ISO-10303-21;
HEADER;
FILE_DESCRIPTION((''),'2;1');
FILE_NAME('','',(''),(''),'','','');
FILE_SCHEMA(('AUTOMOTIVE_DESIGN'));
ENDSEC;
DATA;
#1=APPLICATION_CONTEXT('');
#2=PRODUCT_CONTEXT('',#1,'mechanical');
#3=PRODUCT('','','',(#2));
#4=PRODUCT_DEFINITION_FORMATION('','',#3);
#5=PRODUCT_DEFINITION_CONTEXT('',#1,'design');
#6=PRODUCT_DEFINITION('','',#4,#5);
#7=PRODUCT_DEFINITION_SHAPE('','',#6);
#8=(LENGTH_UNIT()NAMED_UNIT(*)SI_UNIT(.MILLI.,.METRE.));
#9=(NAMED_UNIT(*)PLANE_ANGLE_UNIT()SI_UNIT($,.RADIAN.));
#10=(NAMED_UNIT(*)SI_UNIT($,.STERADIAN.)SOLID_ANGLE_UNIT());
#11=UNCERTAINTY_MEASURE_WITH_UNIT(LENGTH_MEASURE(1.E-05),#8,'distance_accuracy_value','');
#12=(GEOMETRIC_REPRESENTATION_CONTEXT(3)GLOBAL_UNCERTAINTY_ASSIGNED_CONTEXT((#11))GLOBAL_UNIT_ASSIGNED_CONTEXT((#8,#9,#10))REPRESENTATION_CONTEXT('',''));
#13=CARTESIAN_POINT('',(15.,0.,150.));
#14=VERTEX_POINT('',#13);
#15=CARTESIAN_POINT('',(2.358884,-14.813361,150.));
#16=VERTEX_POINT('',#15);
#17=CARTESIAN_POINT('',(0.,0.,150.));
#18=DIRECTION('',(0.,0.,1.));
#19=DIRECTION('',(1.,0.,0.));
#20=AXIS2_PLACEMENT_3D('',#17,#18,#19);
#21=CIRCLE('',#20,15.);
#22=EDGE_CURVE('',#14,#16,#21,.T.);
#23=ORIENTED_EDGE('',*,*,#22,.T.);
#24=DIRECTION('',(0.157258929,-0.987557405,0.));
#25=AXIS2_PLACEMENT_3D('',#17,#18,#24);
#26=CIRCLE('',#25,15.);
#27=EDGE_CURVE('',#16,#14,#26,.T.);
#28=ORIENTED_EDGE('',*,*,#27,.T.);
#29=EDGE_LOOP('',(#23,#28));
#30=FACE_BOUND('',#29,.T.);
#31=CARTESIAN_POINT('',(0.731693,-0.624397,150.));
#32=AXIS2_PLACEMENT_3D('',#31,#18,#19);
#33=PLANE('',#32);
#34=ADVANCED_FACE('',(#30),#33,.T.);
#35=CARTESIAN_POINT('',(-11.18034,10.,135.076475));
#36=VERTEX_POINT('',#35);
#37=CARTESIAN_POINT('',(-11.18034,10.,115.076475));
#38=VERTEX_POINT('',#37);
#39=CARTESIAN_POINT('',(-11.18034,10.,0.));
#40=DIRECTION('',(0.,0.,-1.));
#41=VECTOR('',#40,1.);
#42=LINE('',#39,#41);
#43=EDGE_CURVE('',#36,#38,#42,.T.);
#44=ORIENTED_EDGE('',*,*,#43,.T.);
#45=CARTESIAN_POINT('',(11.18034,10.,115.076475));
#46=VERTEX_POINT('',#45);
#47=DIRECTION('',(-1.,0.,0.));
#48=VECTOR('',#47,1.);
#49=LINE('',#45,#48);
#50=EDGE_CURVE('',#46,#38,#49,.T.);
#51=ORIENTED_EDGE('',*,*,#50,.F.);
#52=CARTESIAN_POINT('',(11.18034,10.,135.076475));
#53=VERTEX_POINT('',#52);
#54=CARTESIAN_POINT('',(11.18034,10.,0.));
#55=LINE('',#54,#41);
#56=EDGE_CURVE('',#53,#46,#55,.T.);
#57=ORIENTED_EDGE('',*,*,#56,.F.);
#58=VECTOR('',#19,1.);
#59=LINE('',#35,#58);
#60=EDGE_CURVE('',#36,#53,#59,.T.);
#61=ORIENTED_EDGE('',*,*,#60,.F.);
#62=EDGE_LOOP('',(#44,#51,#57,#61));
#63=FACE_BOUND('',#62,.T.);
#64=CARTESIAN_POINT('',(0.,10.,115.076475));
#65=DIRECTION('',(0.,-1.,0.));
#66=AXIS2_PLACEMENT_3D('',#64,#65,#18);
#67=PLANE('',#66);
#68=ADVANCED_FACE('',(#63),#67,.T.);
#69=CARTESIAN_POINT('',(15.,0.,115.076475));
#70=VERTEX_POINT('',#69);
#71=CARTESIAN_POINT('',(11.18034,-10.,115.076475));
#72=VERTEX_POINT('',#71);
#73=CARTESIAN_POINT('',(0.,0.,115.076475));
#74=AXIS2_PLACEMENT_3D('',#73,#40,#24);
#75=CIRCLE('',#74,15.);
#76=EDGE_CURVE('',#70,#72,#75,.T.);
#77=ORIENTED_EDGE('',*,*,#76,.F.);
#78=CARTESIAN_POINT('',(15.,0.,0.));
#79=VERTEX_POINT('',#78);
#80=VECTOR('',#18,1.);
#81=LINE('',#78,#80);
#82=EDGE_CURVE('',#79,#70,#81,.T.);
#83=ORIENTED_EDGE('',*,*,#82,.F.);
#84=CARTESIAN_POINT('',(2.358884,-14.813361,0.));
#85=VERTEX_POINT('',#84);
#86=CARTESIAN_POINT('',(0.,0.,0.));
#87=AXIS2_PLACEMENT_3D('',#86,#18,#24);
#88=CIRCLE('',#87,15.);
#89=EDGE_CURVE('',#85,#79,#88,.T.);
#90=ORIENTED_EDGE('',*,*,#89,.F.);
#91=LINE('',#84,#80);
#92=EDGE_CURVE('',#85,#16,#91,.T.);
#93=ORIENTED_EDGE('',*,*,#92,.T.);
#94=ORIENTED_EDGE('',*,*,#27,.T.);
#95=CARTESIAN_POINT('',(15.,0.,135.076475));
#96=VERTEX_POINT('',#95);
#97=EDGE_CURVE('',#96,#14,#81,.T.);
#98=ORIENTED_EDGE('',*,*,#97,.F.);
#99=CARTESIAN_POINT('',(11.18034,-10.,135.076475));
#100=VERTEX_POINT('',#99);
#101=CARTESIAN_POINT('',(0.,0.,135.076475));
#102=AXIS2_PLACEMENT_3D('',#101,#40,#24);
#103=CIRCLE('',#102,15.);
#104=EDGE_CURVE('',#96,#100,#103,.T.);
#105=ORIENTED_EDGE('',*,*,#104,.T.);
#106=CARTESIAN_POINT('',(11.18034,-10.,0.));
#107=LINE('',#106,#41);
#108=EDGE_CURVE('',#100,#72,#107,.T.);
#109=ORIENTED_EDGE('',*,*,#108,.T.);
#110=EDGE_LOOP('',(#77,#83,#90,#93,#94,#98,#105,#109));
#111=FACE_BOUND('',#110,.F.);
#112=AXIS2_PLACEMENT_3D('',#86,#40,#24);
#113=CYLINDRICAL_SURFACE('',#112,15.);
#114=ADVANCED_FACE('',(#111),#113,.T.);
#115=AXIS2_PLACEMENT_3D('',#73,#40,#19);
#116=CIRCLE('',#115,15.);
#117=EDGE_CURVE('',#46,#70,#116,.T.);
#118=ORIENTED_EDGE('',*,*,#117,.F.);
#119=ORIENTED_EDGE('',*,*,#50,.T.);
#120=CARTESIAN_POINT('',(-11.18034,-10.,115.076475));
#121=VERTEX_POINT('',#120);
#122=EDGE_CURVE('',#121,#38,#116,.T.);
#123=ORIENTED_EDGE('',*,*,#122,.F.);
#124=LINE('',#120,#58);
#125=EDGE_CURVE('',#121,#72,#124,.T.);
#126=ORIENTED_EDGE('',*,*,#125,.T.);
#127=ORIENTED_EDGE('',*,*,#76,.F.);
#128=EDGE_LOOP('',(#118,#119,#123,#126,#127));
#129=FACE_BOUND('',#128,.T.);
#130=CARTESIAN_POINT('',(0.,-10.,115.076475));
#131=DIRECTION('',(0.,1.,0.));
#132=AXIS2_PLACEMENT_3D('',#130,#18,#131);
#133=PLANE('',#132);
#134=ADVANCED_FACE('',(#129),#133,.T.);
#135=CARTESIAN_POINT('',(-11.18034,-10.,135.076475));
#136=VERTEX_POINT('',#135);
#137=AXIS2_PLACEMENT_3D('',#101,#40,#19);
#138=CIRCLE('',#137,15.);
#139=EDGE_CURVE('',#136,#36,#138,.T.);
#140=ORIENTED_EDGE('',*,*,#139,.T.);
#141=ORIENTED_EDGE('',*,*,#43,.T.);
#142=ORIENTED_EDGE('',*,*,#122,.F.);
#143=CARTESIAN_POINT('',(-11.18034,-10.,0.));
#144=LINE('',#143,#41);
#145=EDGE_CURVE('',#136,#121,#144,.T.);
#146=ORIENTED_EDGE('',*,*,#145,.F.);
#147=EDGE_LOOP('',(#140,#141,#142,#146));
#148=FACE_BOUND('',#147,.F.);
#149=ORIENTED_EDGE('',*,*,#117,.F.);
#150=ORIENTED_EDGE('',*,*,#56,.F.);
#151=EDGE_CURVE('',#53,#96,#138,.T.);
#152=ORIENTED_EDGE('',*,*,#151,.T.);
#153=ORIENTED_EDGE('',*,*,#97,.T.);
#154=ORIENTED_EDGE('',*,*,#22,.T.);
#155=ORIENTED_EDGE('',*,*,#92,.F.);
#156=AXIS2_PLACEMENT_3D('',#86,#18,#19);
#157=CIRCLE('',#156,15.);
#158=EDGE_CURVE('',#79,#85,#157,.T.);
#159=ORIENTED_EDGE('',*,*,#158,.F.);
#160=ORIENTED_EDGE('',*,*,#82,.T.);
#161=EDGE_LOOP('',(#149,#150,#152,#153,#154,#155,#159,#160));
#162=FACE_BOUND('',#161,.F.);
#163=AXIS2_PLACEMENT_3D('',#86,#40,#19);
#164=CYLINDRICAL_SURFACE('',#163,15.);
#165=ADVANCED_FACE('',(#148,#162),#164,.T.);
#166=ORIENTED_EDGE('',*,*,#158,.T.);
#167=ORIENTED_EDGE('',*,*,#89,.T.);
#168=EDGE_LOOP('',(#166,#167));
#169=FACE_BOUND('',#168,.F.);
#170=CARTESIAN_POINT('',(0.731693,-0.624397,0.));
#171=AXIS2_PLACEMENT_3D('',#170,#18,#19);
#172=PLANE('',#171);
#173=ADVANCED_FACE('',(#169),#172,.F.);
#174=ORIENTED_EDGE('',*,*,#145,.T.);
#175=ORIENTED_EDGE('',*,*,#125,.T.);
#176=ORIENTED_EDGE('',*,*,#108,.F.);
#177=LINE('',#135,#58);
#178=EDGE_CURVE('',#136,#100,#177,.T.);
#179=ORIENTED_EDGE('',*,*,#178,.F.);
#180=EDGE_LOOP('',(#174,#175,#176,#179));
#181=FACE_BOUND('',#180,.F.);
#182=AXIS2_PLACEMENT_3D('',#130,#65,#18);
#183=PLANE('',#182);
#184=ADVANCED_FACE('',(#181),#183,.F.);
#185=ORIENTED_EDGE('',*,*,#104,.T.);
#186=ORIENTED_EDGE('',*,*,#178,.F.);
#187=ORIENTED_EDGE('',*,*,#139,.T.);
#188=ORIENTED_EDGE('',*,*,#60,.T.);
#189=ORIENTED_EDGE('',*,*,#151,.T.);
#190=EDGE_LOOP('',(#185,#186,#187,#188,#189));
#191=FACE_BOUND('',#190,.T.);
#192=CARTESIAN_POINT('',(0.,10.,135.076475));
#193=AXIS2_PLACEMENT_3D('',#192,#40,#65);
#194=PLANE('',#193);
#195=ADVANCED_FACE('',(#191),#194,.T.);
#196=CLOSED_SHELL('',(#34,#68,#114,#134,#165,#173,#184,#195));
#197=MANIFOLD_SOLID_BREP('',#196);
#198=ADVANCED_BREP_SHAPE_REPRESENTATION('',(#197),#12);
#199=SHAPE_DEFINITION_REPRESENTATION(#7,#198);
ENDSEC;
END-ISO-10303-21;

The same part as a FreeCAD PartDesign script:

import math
import FreeCAD as App
import Part
import Sketcher
from FreeCAD import Vector

doc = App.newDocument("Part")
params = doc.addObject("Spreadsheet::Sheet", "Params")
for row, (alias, value) in enumerate([
    ("sketch1_radius", "15 mm"),
    ("pad1_length", "150 mm"),
    ("sketch2_width", "20 mm"),
], start=1):
    params.set(f"A{row}", alias)
    params.set(f"B{row}", "=" + value)
    params.setAlias(f"B{row}", alias)

body = doc.addObject("PartDesign::Body", "Body")

sketch1 = body.newObject("Sketcher::SketchObject", "Sketch")
sketch1.AttachmentSupport = (doc.getObject("XY_Plane"), [""])
sketch1.MapMode = "FlatFace"
sketch1.addGeometry([
    Part.ArcOfCircle(Part.Circle(Vector(0, 0, 0), Vector(0, 0, 1), 15), math.radians(-81), math.radians(0)),
    Part.ArcOfCircle(Part.Circle(Vector(0, 0, 0), Vector(0, 0, 1), 15), math.radians(0), math.radians(279)),
], False)
sketch1.addConstraint([
    Sketcher.Constraint("Tangent", 0, 1, 1, 2),
    Sketcher.Constraint("Coincident", 1, 1, 0, 2),
    Sketcher.Constraint("Coincident", 0, 3, -1, 1),
    Sketcher.Constraint("PointOnObject", 1, 1, -1),
    Sketcher.Constraint("Radius", 0, 15.0),
    Sketcher.Constraint("DistanceY", 0, 1, -1, 1, 14.813361),
])
sketch1.setExpression("Constraints[4]", "Params.sketch1_radius")
pad1 = body.newObject("PartDesign::Pad", "Pad")
pad1.Profile = sketch1
pad1.setExpression("Length", "Params.pad1_length")

sketch2 = body.newObject("Sketcher::SketchObject", "Sketch001")
sketch2.AttachmentSupport = (doc.getObject("YZ_Plane"), [""])
sketch2.MapMode = "FlatFace"
sketch2.addGeometry([
    Part.LineSegment(Vector(-10, 135, 0), Vector(-10, 115, 0)),
    Part.LineSegment(Vector(-10, 115, 0), Vector(10, 115, 0)),
    Part.LineSegment(Vector(10, 115, 0), Vector(10, 135, 0)),
    Part.LineSegment(Vector(10, 135, 0), Vector(-10, 135, 0)),
], False)
sketch2.addConstraint([
    Sketcher.Constraint("Coincident", 0, 2, 1, 1),
    Sketcher.Constraint("Coincident", 1, 2, 2, 1),
    Sketcher.Constraint("Coincident", 2, 2, 3, 1),
    Sketcher.Constraint("Coincident", 3, 2, 0, 1),
    Sketcher.Constraint("Vertical", 0),
    Sketcher.Constraint("Horizontal", 1),
    Sketcher.Constraint("Vertical", 2),
    Sketcher.Constraint("Horizontal", 3),
    Sketcher.Constraint("Equal", 3, 0),
    Sketcher.Constraint("DistanceX", 1, 1, 1, 2, 20.0),
    Sketcher.Constraint("DistanceX", 0, 2, -1, 1, 10.0),
    Sketcher.Constraint("DistanceY", -1, 1, 0, 2, 115.076475),
])
sketch2.setExpression("Constraints[9]", "Params.sketch2_width")
pocket1 = body.newObject("PartDesign::Pocket", "Pocket")
pocket1.Profile = sketch2
pocket1.Type = "ThroughAll"
pocket1.Midplane = True

doc.recompute()
